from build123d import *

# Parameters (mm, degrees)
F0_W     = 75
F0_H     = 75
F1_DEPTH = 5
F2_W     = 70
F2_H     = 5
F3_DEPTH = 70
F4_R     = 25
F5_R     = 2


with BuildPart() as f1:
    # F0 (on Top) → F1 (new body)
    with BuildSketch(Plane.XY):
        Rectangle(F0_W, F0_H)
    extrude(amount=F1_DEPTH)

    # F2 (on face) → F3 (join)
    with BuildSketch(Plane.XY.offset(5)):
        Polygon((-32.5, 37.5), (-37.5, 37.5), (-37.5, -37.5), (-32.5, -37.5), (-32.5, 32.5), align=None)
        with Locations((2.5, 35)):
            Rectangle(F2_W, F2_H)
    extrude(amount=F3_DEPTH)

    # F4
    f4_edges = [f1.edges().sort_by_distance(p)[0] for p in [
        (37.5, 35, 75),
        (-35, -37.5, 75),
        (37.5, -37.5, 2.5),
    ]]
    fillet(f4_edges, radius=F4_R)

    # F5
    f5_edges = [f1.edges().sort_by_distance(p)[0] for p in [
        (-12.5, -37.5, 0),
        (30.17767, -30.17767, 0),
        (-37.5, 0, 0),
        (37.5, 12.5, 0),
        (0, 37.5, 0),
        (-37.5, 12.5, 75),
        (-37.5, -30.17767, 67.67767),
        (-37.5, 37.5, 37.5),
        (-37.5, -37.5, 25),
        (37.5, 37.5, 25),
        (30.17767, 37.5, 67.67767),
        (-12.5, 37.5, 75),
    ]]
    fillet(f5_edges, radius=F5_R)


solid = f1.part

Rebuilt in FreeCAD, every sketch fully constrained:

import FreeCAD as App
import Part
import Sketcher
from FreeCAD import Vector
Q = App.Units.Quantity


def edges_at(feature, points):
    """Names of the edges that pass closest to the given points."""
    edges = feature.Shape.Edges
    near = lambda p: min(range(len(edges)), key=lambda i: edges[i].distToShape(Part.Vertex(*p))[0])
    return sorted({f"Edge{near(p) + 1}" for p in points})

doc = App.newDocument("Part")
body = doc.addObject("PartDesign::Body", "Body")

# Sketch on XY plane
sketch1 = doc.addObject("Sketcher::SketchObject", "Sketch")
body.addObject(sketch1)
sketch1.AttachmentSupport = (doc.XY_Plane, [""])
sketch1.MapMode = "FlatFace"
sketch1.addGeometry([
    Part.LineSegment(Vector(-38, 38, 0), Vector(-38, -38, 0)),
    Part.LineSegment(Vector(-38, -38, 0), Vector(38, -38, 0)),
    Part.LineSegment(Vector(38, -38, 0), Vector(38, 38, 0)),
    Part.LineSegment(Vector(38, 38, 0), Vector(-38, 38, 0)),
], False)
sketch1.addConstraint([
    Sketcher.Constraint("Coincident", 0, 2, 1, 1),
    Sketcher.Constraint("Coincident", 1, 2, 2, 1),
    Sketcher.Constraint("Coincident", 2, 2, 3, 1),
    Sketcher.Constraint("Coincident", 3, 2, 0, 1),
    Sketcher.Constraint("Vertical", 0),
    Sketcher.Constraint("Horizontal", 1),
    Sketcher.Constraint("Vertical", 2),
    Sketcher.Constraint("Horizontal", 3),
    Sketcher.Constraint("Symmetric", 0, 2, 2, 2, -1, 1),
    Sketcher.Constraint("Equal", 3, 0),
    Sketcher.Constraint("DistanceX", 1, 1, 1, 2, Q("75 mm")),
])
pad1 = doc.addObject("PartDesign::Pad", "Pad")
body.addObject(pad1)
pad1.Profile = sketch1
pad1.Length = 5

# Sketch on XY plane
sketch2 = doc.addObject("Sketcher::SketchObject", "Sketch001")
body.addObject(sketch2)
sketch2.AttachmentSupport = (doc.XY_Plane, [""])
sketch2.MapMode = "FlatFace"
sketch2.AttachmentOffset = App.Placement(Vector(0, 0, 5), App.Rotation())
sketch2.addGeometry([
    Part.LineSegment(Vector(-38, 38, 0), Vector(-38, -38, 0)),  # 0
    Part.LineSegment(Vector(-38, -38, 0), Vector(-32, -38, 0)),  # 1
    Part.LineSegment(Vector(-32, -38, 0), Vector(-32, 32, 0)),  # 2
    Part.LineSegment(Vector(-32, 32, 0), Vector(38, 32, 0)),  # 3
    Part.LineSegment(Vector(38, 32, 0), Vector(38, 38, 0)),  # 4
    Part.LineSegment(Vector(38, 38, 0), Vector(-38, 38, 0)),  # 5
], False)
sketch2.addConstraint([
    Sketcher.Constraint("Coincident", 0, 2, 1, 1),
    Sketcher.Constraint("Coincident", 1, 2, 2, 1),
    Sketcher.Constraint("Coincident", 2, 2, 3, 1),
    Sketcher.Constraint("Coincident", 3, 2, 4, 1),
    Sketcher.Constraint("Coincident", 4, 2, 5, 1),
    Sketcher.Constraint("Coincident", 5, 2, 0, 1),
    Sketcher.Constraint("Vertical", 0),
    Sketcher.Constraint("Horizontal", 1),
    Sketcher.Constraint("Vertical", 2),
    Sketcher.Constraint("Horizontal", 3),
    Sketcher.Constraint("Vertical", 4),
    Sketcher.Constraint("Horizontal", 5),
    Sketcher.Constraint("Symmetric", 0, 2, 4, 2, -1, 1),
    Sketcher.Constraint("Equal", 5, 0),
    Sketcher.Constraint("Equal", 3, 2),
    Sketcher.Constraint("DistanceX", 1, 1, 1, 2, Q("5 mm")),
    Sketcher.Constraint("DistanceX", 3, 1, 3, 2, Q("70 mm")),
])
pad2 = doc.addObject("PartDesign::Pad", "Pad001")
body.addObject(pad2)
pad2.Profile = sketch2
pad2.Length = 70
doc.recompute()

fillet = doc.addObject("PartDesign::Fillet", "Fillet")
body.addObject(fillet)
fillet.Base = (pad2, edges_at(pad2, [(37.5, 35, 75), (-35, -37.5, 75), (37.5, -37.5, 2.5)]))
fillet.Radius = 25
doc.recompute()

fillet2 = doc.addObject("PartDesign::Fillet", "Fillet001")
body.addObject(fillet2)
fillet2.Base = (fillet, edges_at(fillet, [
    (-12.5, -37.5, 0),
    (30.178, -30.178, 0),
    (-37.5, 0, 0),
    (37.5, 12.5, 0),
    (0, 37.5, 0),
    (-37.5, 12.5, 75),
    (-37.5, -30.178, 67.678),
    (-37.5, 37.5, 37.5),
    (-37.5, -37.5, 25),
    (37.5, 37.5, 25),
    (30.178, 37.5, 67.678),
    (-12.5, 37.5, 75),
]))
fillet2.Radius = 2

doc.recompute()
